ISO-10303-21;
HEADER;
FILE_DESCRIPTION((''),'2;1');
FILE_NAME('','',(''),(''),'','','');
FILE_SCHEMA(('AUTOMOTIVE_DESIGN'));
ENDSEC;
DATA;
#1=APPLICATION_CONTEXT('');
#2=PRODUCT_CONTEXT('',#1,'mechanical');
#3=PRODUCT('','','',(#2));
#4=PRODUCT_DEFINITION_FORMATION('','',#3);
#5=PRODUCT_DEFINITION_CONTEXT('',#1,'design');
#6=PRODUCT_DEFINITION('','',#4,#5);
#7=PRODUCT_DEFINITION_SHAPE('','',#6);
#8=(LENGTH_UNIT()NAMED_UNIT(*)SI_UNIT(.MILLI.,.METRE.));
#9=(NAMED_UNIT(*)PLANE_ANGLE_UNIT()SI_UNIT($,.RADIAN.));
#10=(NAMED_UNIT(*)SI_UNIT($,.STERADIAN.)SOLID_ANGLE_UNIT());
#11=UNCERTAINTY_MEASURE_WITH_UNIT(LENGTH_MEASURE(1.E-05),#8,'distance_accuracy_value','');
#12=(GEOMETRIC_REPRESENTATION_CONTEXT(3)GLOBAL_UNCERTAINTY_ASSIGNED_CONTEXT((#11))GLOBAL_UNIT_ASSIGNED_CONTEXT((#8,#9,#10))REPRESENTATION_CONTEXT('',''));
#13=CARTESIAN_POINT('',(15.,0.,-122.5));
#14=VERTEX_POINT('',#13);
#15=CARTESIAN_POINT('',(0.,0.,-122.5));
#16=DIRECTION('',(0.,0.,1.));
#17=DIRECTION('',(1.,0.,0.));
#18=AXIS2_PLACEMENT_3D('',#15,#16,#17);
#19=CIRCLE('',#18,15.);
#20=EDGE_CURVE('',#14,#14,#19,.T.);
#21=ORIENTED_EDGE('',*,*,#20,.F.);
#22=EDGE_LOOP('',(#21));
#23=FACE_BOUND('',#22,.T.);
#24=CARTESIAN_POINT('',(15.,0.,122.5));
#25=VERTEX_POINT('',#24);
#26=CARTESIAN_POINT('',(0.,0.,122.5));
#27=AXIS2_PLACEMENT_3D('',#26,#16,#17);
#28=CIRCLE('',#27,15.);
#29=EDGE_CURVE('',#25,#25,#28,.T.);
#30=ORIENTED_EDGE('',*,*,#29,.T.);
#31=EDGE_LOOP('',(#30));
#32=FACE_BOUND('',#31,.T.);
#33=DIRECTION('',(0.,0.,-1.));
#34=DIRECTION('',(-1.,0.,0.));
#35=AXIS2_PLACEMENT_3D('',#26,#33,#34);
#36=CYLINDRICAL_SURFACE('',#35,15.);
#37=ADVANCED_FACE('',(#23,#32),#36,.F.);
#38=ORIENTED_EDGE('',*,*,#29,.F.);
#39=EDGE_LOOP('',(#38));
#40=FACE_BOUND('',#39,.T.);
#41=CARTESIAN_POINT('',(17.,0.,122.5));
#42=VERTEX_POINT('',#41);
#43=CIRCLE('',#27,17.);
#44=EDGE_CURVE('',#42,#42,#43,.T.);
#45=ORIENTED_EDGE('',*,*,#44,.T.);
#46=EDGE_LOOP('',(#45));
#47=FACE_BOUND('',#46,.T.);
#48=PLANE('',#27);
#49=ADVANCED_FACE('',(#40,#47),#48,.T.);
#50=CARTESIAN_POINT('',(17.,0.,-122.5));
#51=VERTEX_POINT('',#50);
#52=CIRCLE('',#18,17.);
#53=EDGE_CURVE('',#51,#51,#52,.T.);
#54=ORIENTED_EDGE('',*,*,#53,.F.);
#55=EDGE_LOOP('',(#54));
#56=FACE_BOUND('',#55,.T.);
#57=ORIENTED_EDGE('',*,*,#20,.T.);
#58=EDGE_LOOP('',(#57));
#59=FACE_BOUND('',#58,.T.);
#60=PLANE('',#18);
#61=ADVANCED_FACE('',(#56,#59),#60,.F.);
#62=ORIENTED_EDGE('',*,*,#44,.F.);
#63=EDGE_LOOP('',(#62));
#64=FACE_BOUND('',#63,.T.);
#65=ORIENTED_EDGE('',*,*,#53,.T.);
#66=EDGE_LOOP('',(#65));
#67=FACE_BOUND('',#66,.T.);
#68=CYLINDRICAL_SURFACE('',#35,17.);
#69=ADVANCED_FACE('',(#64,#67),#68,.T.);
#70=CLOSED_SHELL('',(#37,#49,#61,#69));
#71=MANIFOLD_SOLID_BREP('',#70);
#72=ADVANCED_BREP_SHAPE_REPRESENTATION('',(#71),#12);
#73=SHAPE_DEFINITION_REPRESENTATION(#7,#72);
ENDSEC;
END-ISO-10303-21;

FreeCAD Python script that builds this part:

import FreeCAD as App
import Part
import Sketcher
from FreeCAD import Vector
Q = App.Units.Quantity

doc = App.newDocument("Part")
body = doc.addObject("PartDesign::Body", "Body")

# Sketch on XY plane
sketch1 = body.newObject("Sketcher::SketchObject", "Sketch")
sketch1.AttachmentSupport = (doc.getObject("XY_Plane"), [""])
sketch1.MapMode = "FlatFace"
sketch1.addGeometry(Part.Circle(Vector(0, 0, 0), Vector(0, 0, 1), 17), False)
sketch1.addGeometry(Part.Circle(Vector(0, 0, 0), Vector(0, 0, 1), 15), False)
sketch1.addConstraint(Sketcher.Constraint("Coincident", 0, 3, -1, 1))
sketch1.addConstraint(Sketcher.Constraint("Coincident", 1, 3, -1, 1))
sketch1.addConstraint(Sketcher.Constraint("Diameter", 0, Q("34 mm")))
sketch1.addConstraint(Sketcher.Constraint("Diameter", 1, Q("30 mm")))
pad1 = body.newObject("PartDesign::Pad", "Pad")
pad1.Profile = sketch1
pad1.Length = 245
pad1.Midplane = True

doc.recompute()
